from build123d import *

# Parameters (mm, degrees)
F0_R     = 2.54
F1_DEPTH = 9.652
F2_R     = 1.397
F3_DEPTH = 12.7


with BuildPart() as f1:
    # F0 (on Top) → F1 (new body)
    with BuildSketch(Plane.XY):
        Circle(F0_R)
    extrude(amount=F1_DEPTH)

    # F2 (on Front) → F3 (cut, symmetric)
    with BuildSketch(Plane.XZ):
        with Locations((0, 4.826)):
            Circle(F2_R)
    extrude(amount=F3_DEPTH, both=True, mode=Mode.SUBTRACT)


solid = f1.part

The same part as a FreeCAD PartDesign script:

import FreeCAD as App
import Part
import Sketcher
from FreeCAD import Vector
Q = App.Units.Quantity

doc = App.newDocument("Part")
params = doc.addObject("Spreadsheet::Sheet", "Params")
for row, (alias, value) in enumerate([
    ("sketch1_diameter", "0.2 in"),
    ("pad1_length", "0.38 in"),
    ("sketch2_diameter", "0.11 in"),
    ("pocket1_length", "1 in"),
], start=1):
    params.set(f"A{row}", alias)
    params.set(f"B{row}", "=" + value)
    params.setAlias(f"B{row}", alias)

body = doc.addObject("PartDesign::Body", "Body")

# Sketch on XY plane
sketch1 = body.newObject("Sketcher::SketchObject", "Sketch")
sketch1.AttachmentSupport = (doc.getObject("XY_Plane"), [""])
sketch1.MapMode = "FlatFace"
sketch1.addGeometry(Part.Circle(Vector(0, 0, 0), Vector(0, 0, 1), 2.5), False)
sketch1.addConstraint([
    Sketcher.Constraint("Coincident", 0, 3, -1, 1),
    Sketcher.Constraint("Diameter", 0, Q("0.2 in")),
])
sketch1.setExpression("Constraints[1]", "Params.sketch1_diameter")
pad1 = body.newObject("PartDesign::Pad", "Pad")
pad1.Profile = sketch1
pad1.setExpression("Length", "Params.pad1_length")

# Sketch on XZ plane
sketch2 = body.newObject("Sketcher::SketchObject", "Sketch001")
sketch2.AttachmentSupport = (doc.getObject("XZ_Plane"), [""])
sketch2.MapMode = "FlatFace"
sketch2.addGeometry(Part.Circle(Vector(0, 4.8, 0), Vector(0, 0, 1), 1.4), False)
sketch2.addConstraint([
    Sketcher.Constraint("PointOnObject", 0, 3, -2),
    Sketcher.Constraint("Diameter", 0, Q("0.11 in")),
    Sketcher.Constraint("DistanceY", -1, 1, 0, 3, Q("0.19 in")),
])
sketch2.setExpression("Constraints[1]", "Params.sketch2_diameter")
pocket1 = body.newObject("PartDesign::Pocket", "Pocket")
pocket1.Profile = sketch2
pocket1.setExpression("Length", "Params.pocket1_length")
pocket1.Midplane = True

doc.recompute()
